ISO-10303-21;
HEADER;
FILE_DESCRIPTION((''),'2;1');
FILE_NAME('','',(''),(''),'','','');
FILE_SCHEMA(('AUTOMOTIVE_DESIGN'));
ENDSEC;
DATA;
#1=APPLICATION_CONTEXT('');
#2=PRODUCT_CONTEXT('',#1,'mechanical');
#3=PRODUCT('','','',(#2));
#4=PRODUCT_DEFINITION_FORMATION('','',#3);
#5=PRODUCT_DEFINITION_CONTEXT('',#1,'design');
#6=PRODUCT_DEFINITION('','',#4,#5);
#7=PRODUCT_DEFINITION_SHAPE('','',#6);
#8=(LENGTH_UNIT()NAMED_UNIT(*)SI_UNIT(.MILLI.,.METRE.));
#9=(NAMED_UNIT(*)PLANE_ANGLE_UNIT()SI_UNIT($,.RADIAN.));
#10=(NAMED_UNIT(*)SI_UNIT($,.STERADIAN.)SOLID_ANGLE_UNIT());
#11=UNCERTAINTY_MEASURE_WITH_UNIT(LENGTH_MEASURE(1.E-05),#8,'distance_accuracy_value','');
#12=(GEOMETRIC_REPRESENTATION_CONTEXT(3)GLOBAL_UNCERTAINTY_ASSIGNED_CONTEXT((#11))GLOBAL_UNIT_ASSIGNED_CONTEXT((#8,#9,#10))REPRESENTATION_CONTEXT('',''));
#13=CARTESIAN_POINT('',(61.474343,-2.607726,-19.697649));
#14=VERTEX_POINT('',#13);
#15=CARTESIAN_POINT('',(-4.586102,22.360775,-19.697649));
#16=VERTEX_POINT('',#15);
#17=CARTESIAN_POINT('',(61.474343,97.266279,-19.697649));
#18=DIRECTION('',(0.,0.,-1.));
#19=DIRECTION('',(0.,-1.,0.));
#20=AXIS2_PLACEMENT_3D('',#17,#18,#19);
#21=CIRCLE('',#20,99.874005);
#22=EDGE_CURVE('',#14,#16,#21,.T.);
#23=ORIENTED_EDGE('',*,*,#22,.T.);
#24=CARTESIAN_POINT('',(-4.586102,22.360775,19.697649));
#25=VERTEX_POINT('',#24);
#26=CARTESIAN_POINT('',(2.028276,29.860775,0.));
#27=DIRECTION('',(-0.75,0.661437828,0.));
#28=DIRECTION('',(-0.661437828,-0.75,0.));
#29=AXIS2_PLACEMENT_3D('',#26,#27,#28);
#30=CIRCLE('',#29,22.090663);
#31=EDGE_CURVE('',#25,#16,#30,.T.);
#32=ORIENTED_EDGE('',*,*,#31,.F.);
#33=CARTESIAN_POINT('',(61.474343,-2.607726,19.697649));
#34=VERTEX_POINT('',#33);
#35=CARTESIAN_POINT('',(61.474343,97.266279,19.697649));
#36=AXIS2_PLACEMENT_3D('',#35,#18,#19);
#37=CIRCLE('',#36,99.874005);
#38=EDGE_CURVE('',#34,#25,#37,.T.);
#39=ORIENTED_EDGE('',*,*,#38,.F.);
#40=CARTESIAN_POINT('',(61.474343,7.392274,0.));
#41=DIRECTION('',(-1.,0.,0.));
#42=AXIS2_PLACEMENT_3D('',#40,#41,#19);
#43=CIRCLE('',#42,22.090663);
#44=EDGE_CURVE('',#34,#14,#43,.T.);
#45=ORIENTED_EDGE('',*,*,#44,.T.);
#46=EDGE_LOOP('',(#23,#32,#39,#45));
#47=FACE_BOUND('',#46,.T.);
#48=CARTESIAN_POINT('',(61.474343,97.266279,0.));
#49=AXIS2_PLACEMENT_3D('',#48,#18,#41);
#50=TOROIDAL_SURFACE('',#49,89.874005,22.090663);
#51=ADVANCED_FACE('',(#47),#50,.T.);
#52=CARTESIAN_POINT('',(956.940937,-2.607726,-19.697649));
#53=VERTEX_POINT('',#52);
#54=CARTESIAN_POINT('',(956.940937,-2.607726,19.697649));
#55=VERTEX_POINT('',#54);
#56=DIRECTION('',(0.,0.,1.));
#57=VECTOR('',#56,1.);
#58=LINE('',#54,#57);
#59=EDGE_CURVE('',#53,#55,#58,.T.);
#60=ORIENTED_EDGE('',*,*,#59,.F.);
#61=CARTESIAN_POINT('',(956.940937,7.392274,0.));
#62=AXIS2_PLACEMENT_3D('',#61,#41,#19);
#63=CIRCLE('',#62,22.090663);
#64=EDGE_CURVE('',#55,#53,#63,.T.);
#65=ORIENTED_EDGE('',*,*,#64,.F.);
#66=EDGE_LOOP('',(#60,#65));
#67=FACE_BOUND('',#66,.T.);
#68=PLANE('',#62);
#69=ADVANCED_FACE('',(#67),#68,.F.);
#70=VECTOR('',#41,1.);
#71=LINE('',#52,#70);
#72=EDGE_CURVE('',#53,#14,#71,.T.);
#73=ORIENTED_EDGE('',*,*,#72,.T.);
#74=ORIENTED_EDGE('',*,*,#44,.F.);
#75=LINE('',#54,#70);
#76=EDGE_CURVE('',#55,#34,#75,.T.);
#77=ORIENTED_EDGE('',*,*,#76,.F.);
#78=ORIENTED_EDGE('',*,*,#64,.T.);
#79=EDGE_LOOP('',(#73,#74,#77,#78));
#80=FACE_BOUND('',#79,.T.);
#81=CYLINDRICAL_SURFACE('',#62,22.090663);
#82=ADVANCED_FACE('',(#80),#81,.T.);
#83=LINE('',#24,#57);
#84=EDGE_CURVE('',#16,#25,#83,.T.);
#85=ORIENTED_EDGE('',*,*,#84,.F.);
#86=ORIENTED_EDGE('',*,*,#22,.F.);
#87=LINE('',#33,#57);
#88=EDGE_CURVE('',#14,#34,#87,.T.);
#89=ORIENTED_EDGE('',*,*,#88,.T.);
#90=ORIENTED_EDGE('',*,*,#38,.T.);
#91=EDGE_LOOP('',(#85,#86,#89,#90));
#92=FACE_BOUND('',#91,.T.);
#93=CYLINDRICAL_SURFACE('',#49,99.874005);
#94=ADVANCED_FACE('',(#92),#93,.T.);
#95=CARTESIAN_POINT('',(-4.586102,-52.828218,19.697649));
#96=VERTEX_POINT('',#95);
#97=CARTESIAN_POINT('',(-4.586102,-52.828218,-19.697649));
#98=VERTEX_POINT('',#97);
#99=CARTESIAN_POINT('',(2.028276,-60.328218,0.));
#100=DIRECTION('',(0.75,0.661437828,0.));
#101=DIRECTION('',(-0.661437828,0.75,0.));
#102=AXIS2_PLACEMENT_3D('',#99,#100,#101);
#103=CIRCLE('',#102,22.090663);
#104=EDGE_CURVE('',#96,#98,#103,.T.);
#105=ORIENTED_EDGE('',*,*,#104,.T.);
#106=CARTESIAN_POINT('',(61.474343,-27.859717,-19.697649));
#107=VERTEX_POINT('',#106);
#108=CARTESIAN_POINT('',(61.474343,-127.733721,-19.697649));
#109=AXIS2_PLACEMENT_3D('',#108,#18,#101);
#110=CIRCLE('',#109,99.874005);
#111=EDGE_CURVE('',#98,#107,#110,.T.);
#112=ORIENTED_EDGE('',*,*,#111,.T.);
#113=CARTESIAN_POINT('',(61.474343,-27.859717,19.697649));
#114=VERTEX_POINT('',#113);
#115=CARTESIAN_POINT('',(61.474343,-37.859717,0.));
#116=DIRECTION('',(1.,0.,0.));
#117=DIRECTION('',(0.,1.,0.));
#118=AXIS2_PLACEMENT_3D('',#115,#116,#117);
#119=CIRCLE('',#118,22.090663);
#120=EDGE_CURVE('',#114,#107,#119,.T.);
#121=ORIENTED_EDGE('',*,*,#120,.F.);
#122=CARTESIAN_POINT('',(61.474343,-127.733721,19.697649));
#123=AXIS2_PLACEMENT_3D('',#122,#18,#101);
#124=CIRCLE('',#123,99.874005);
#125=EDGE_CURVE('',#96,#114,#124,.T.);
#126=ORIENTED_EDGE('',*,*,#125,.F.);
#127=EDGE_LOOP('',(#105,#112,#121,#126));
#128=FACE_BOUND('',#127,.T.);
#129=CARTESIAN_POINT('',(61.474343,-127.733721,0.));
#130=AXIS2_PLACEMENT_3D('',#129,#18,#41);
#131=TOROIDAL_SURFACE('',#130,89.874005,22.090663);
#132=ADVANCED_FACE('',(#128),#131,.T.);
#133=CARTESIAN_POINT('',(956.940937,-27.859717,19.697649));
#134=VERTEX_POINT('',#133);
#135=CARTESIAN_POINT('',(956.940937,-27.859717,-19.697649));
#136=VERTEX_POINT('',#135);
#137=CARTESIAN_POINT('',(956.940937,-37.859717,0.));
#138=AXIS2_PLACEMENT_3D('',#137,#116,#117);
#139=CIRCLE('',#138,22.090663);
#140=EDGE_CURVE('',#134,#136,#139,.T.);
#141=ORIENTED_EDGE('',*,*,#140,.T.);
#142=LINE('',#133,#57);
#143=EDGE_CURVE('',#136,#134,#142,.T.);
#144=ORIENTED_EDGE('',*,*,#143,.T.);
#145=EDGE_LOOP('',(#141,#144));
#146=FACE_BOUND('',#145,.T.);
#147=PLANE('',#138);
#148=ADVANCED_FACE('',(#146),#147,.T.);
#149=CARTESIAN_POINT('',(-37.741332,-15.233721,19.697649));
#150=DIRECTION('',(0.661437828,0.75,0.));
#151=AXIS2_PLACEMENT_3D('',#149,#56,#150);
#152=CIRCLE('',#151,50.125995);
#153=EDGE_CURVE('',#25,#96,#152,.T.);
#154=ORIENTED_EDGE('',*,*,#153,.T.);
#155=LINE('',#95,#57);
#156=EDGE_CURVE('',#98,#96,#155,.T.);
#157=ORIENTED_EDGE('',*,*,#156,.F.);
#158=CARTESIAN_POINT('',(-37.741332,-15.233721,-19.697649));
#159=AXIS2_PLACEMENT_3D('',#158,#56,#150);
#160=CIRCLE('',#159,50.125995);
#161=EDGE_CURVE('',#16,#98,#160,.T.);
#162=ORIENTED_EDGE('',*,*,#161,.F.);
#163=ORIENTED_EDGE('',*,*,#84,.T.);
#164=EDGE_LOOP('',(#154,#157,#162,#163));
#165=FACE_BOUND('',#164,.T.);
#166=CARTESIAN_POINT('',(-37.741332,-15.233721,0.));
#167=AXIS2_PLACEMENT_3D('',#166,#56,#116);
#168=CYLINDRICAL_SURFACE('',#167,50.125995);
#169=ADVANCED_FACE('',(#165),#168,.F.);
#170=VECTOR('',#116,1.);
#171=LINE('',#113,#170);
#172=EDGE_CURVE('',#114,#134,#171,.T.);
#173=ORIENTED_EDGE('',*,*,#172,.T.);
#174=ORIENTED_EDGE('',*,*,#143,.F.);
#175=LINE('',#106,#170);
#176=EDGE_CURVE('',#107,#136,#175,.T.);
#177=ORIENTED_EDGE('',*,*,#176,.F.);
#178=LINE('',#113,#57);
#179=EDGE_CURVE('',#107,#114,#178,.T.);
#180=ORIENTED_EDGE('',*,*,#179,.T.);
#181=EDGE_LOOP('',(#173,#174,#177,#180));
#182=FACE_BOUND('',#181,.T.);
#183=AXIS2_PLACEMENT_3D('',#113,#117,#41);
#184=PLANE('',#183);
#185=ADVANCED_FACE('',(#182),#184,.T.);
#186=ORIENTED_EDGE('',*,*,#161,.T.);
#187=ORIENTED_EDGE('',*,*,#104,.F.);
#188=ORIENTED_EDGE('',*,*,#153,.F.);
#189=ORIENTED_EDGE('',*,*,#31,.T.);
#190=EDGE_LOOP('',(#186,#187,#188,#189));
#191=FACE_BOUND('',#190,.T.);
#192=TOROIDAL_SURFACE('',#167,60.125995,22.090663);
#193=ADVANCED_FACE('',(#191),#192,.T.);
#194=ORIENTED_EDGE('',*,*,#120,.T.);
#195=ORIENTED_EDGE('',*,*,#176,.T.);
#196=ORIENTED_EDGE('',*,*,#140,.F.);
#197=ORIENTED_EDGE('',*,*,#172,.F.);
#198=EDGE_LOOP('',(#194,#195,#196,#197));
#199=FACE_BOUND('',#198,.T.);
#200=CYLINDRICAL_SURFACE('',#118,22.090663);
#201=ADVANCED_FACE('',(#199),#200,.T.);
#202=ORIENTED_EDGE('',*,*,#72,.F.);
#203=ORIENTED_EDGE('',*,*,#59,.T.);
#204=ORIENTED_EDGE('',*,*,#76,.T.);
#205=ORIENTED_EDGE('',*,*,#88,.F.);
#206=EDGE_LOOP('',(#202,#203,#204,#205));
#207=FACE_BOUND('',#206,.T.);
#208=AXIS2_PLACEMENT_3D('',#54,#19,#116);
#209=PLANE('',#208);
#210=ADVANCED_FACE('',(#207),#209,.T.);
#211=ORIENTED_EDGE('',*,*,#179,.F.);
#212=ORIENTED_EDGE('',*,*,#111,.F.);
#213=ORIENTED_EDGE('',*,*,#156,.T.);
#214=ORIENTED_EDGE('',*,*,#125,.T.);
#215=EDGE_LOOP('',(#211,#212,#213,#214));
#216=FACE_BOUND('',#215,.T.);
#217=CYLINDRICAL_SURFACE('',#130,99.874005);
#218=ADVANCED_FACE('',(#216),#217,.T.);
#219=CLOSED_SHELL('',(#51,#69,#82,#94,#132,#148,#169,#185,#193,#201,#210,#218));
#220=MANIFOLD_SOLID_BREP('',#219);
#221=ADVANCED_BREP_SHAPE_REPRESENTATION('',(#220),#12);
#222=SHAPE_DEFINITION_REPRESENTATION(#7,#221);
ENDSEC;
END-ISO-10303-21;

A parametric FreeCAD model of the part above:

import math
import FreeCAD as App
import Part
import Sketcher

V = App.Vector
Q = App.Units.Quantity

doc = App.newDocument("Part")
body = doc.addObject("PartDesign::Body", "Body")

# Sketch on YZ plane
sketch1 = doc.addObject("Sketcher::SketchObject", "Sketch")
body.addObject(sketch1)
sketch1.AttachmentSupport = (doc.YZ_Plane, [""])
sketch1.MapMode = "FlatFace"
sketch1.AttachmentOffset = App.Placement(V(0, 0, 956.940937), App.Rotation())
sketch1.addGeometry(Part.LineSegment(V(-3, -20, 0), V(-3, 20, 0)), False)
sketch1.addGeometry(Part.ArcOfCircle(Part.Circle(V(7, 0, 0), V(0, 0, 1), 22), math.radians(-117), math.radians(117)), False)
sketch1.addConstraint(Sketcher.Constraint("Coincident", 0, 1, 1, 1))
sketch1.addConstraint(Sketcher.Constraint("Coincident", 1, 2, 0, 2))
sketch1.addConstraint(Sketcher.Constraint("Vertical", 0))
sketch1.addConstraint(Sketcher.Constraint("PointOnObject", 1, 3, -1))
sketch1.addConstraint(Sketcher.Constraint("DistanceX", 0, 1, 1, 3, Q("10 mm")))
sketch1.addConstraint(Sketcher.Constraint("DistanceY", 0, 1, 0, 2, Q("39.395298 mm")))
sketch1.addConstraint(Sketcher.Constraint("DistanceX", -1, 1, 1, 3, Q("7.392274 mm")))

# Sketch on XY plane
sketch2 = doc.addObject("Sketcher::SketchObject", "Sketch001")
body.addObject(sketch2)
sketch2.AttachmentSupport = (doc.XY_Plane, [""])
sketch2.MapMode = "FlatFace"
sketch2.addGeometry(Part.LineSegment(V(957, -28, 0), V(61, -28, 0)), False)
sketch2.addGeometry(Part.ArcOfCircle(Part.Circle(V(61, -128, 0), V(0, 0, 1), 100), math.radians(90), math.radians(131)), False)
sketch2.addGeometry(Part.ArcOfCircle(Part.Circle(V(-38, -15, 0), V(0, 0, 1), 50), math.radians(49), math.radians(311)), False)
sketch2.addGeometry(Part.ArcOfCircle(Part.Circle(V(61, 97, 0), V(0, 0, 1), 100), math.radians(-131), math.radians(-90)), False)
sketch2.addGeometry(Part.LineSegment(V(61, -3, 0), V(957, -3, 0)), False)
sketch2.addConstraint(Sketcher.Constraint("Tangent", 0, 2, 1, 1))
sketch2.addConstraint(Sketcher.Constraint("Tangent", 1, 2, 2, 2))
sketch2.addConstraint(Sketcher.Constraint("Tangent", 2, 1, 3, 1))
sketch2.addConstraint(Sketcher.Constraint("Tangent", 3, 2, 4, 1))
sketch2.addConstraint(Sketcher.Constraint("Horizontal", 0))
sketch2.addConstraint(Sketcher.Constraint("Horizontal", 4))
sketch2.addConstraint(Sketcher.Constraint("Equal", 1, 3))
sketch2.addConstraint(Sketcher.Constraint("Vertical", 1, 3, 3, 3))
sketch2.addConstraint(Sketcher.Constraint("Vertical", 0, 1, 4, 2))
sketch2.addConstraint(Sketcher.Constraint("Radius", 1, Q("100 mm")))
sketch2.addConstraint(Sketcher.Constraint("Radius", 2, Q("50 mm")))
sketch2.addConstraint(Sketcher.Constraint("DistanceY", 1, 3, 3, 3, Q("225 mm")))
sketch2.addConstraint(Sketcher.Constraint("DistanceX", 0, 2, 0, 1, Q("895.466594 mm")))
sketch2.addConstraint(Sketcher.Constraint("DistanceY", 1, 3, -1, 1, Q("127.733721 mm")))
sketch2.addConstraint(Sketcher.Constraint("DistanceX", 2, 3, -1, 1, Q("37.741332 mm")))
doc.recompute()

additivepipe = doc.addObject("PartDesign::AdditivePipe", "AdditivePipe")
body.addObject(additivepipe)
additivepipe.Profile = sketch1
additivepipe.Spine = (sketch2, ["Edge1", "Edge2", "Edge3", "Edge4", "Edge5"])

doc.recompute()
